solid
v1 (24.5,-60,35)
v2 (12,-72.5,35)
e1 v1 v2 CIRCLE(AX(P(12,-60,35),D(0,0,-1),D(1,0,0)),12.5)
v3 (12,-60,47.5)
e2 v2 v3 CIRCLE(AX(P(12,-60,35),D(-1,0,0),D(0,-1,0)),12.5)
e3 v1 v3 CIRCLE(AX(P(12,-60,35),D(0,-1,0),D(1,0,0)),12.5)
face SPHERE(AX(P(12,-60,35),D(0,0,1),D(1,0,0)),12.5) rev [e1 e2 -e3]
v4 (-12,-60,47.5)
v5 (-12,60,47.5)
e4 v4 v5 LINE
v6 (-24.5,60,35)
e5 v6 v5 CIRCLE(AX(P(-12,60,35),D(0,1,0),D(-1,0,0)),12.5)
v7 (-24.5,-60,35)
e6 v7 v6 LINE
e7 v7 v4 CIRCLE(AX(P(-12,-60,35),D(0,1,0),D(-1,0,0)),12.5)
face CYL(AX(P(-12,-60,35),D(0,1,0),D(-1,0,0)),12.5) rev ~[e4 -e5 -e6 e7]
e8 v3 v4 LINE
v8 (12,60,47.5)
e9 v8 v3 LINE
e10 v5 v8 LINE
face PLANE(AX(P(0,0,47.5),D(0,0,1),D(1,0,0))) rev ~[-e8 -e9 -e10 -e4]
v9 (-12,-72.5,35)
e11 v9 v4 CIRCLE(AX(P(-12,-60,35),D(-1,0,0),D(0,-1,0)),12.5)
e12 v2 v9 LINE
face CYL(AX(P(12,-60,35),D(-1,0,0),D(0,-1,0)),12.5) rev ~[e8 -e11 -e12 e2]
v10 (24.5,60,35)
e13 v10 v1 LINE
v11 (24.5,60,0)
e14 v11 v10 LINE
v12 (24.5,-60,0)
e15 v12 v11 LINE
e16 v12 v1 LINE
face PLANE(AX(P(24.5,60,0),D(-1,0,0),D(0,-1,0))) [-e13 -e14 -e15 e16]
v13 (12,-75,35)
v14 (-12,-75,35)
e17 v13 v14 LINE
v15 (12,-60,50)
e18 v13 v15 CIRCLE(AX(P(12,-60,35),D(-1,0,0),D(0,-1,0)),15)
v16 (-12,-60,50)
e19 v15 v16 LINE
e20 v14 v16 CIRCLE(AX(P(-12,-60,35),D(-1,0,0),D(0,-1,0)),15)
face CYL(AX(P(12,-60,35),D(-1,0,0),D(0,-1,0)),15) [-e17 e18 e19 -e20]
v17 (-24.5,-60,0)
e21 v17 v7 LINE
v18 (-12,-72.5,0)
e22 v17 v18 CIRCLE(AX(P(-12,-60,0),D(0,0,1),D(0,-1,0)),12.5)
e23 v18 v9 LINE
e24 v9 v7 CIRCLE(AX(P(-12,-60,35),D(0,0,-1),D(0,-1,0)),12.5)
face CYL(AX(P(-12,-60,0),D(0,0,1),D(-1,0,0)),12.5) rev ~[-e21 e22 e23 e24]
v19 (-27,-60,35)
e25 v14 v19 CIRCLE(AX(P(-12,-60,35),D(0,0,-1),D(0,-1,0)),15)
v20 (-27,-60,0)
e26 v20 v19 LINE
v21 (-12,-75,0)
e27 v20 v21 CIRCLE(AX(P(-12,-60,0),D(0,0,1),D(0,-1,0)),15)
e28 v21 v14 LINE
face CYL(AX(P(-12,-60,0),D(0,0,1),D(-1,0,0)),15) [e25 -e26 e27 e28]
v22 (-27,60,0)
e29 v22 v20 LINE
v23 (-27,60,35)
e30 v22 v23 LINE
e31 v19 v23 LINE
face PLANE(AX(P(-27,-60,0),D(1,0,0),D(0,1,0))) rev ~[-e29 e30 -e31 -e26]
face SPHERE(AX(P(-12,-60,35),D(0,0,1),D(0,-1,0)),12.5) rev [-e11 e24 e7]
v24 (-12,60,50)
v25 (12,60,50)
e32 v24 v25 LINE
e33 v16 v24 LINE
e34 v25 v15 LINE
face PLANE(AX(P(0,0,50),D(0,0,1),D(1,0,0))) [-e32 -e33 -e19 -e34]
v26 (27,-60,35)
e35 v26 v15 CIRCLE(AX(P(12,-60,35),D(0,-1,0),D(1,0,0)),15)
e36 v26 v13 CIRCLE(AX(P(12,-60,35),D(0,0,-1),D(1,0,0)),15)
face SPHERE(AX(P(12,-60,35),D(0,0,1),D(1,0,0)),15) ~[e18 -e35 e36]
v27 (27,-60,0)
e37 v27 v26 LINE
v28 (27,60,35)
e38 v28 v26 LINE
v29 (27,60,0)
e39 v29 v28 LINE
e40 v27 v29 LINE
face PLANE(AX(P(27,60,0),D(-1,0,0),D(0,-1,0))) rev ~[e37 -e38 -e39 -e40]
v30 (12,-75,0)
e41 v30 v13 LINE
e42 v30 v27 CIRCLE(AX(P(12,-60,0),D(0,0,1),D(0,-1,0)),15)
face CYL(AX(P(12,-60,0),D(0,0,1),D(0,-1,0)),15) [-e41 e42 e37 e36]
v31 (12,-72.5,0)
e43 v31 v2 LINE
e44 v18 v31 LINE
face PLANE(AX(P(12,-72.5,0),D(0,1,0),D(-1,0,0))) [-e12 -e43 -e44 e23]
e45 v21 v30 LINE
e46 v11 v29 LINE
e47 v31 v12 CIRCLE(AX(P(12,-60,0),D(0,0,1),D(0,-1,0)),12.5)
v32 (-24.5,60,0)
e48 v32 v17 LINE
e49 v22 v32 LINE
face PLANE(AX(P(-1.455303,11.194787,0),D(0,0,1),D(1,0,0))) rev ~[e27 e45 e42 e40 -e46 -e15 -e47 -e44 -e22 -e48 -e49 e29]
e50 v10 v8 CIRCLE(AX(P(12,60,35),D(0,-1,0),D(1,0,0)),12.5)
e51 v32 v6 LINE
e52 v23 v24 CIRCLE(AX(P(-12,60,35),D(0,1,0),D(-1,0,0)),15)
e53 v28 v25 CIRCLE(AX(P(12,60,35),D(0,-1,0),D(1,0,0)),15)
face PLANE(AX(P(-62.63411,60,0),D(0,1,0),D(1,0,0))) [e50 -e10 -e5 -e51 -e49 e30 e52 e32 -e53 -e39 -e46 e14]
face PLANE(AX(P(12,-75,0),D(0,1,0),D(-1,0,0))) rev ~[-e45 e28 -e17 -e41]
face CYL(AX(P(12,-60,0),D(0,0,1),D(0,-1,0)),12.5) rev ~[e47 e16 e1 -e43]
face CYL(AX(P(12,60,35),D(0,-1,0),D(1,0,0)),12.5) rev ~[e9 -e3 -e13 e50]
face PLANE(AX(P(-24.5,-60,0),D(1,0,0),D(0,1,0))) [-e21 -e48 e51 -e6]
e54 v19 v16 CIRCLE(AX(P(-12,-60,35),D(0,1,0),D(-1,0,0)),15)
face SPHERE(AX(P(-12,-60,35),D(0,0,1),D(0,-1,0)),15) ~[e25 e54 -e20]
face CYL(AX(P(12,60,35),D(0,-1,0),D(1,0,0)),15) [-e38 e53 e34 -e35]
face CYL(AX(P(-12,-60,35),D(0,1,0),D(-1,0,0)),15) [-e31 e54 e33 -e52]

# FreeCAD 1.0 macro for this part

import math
import FreeCAD as App
import Part
import Sketcher

V = App.Vector


def edges_at(feature, points):
    """Names of the edges that pass closest to the given points."""
    edges = feature.Shape.Edges
    near = lambda p: min(range(len(edges)), key=lambda i: edges[i].distToShape(Part.Vertex(*p))[0])
    return sorted({f"Edge{near(p) + 1}" for p in points})


def faces_at(feature, points):
    """Names of the faces that lie closest to the given points."""
    faces = feature.Shape.Faces
    near = lambda p: min(range(len(faces)), key=lambda i: faces[i].distToShape(Part.Vertex(*p))[0])
    return sorted({f"Face{near(p) + 1}" for p in points})

doc = App.newDocument("Part")
body = doc.addObject("PartDesign::Body", "Body")

sketch1 = body.newObject("Sketcher::SketchObject", "Sketch")
sketch1.AttachmentSupport = (doc.getObject("XY_Plane"), [""])
sketch1.MapMode = "FlatFace"
sketch1.addGeometry(Part.LineSegment(V(-27, 75, 0), V(-27, -75, 0)), False)
sketch1.addGeometry(Part.LineSegment(V(-27, -75, 0), V(27, -75, 0)), False)
sketch1.addGeometry(Part.LineSegment(V(27, -75, 0), V(27, 75, 0)), False)
sketch1.addGeometry(Part.LineSegment(V(27, 75, 0), V(-27, 75, 0)), False)
sketch1.addConstraint(Sketcher.Constraint("Coincident", 0, 2, 1, 1))
sketch1.addConstraint(Sketcher.Constraint("Coincident", 1, 2, 2, 1))
sketch1.addConstraint(Sketcher.Constraint("Coincident", 2, 2, 3, 1))
sketch1.addConstraint(Sketcher.Constraint("Coincident", 3, 2, 0, 1))
sketch1.addConstraint(Sketcher.Constraint("Vertical", 0))
sketch1.addConstraint(Sketcher.Constraint("Horizontal", 1))
sketch1.addConstraint(Sketcher.Constraint("Vertical", 2))
sketch1.addConstraint(Sketcher.Constraint("Horizontal", 3))
sketch1.addConstraint(Sketcher.Constraint("Symmetric", 0, 2, 2, 2, -1, 1))
sketch1.addConstraint(Sketcher.Constraint("DistanceX", 1, 1, 1, 2, 54.0))
sketch1.addConstraint(Sketcher.Constraint("DistanceY", 0, 2, 0, 1, 150.0))
pad1 = body.newObject("PartDesign::Pad", "Pad")
pad1.Profile = sketch1
pad1.Length = 50
doc.recompute()

fillet = body.newObject("PartDesign::Fillet", "Fillet")
fillet.Base = (pad1, edges_at(pad1, [
    (27, -75, 25),
    (-27, -75, 25),
    (27, 75, 25),
    (-27, 75, 25),
]))
fillet.Radius = 15
doc.recompute()

fillet2 = body.newObject("PartDesign::Fillet", "Fillet001")
fillet2.Base = (fillet, edges_at(fillet, [(-27, 0, 50)]))
fillet2.Radius = 15

sketch2 = body.newObject("Sketcher::SketchObject", "Sketch001")
sketch2.AttachmentSupport = (doc.getObject("XY_Plane"), [""])
sketch2.MapMode = "FlatFace"
sketch2.addGeometry(Part.ArcOfCircle(Part.Circle(V(12, 60, 0), V(0, 0, 1), 15), math.radians(0), math.radians(90)), False)
sketch2.addGeometry(Part.LineSegment(V(27, 60, 0), V(27, -60, 0)), False)
sketch2.addGeometry(Part.ArcOfCircle(Part.Circle(V(12, -60, 0), V(0, 0, 1), 15), math.radians(-90), math.radians(0)), False)
sketch2.addGeometry(Part.LineSegment(V(12, -75, 0), V(-12, -75, 0)), False)
sketch2.addGeometry(Part.ArcOfCircle(Part.Circle(V(-12, -60, 0), V(0, 0, 1), 15), math.radians(180), math.radians(270)), False)
sketch2.addGeometry(Part.LineSegment(V(-27, -60, 0), V(-27, 60, 0)), False)
sketch2.addGeometry(Part.ArcOfCircle(Part.Circle(V(-12, 60, 0), V(0, 0, 1), 15), math.radians(90), math.radians(180)), False)
sketch2.addGeometry(Part.LineSegment(V(-12, 75, 0), V(12, 75, 0)), False)
sketch2.addConstraint(Sketcher.Constraint("Tangent", 0, 1, 1, 1))
sketch2.addConstraint(Sketcher.Constraint("Tangent", 1, 2, 2, 2))
sketch2.addConstraint(Sketcher.Constraint("Tangent", 2, 1, 3, 1))
sketch2.addConstraint(Sketcher.Constraint("Tangent", 3, 2, 4, 2))
sketch2.addConstraint(Sketcher.Constraint("Tangent", 4, 1, 5, 1))
sketch2.addConstraint(Sketcher.Constraint("Tangent", 5, 2, 6, 2))
sketch2.addConstraint(Sketcher.Constraint("Tangent", 6, 1, 7, 1))
sketch2.addConstraint(Sketcher.Constraint("Tangent", 7, 2, 0, 2))
sketch2.addConstraint(Sketcher.Constraint("Vertical", 1))
sketch2.addConstraint(Sketcher.Constraint("Horizontal", 3))
sketch2.addConstraint(Sketcher.Constraint("Vertical", 5))
sketch2.addConstraint(Sketcher.Constraint("Horizontal", 7))
sketch2.addConstraint(Sketcher.Constraint("Equal", 0, 2))
sketch2.addConstraint(Sketcher.Constraint("Equal", 2, 4))
sketch2.addConstraint(Sketcher.Constraint("Equal", 4, 6))
sketch2.addConstraint(Sketcher.Constraint("Symmetric", 0, 3, 4, 3, -1, 1))
sketch2.addConstraint(Sketcher.Constraint("Radius", 0, 14.999999))
sketch2.addConstraint(Sketcher.Constraint("DistanceX", 3, 2, 3, 1, 24.0))
sketch2.addConstraint(Sketcher.Constraint("DistanceY", 1, 2, 1, 1, 120.0))
pad2 = body.newObject("PartDesign::Pad", "Pad001")
pad2.Profile = sketch2
pad2.Length = 5
pad2.Reversed = True

sketch3 = body.newObject("Sketcher::SketchObject", "Sketch002")
sketch3.AttachmentSupport = (doc.getObject("XY_Plane"), [""])
sketch3.MapMode = "FlatFace"
sketch3.addGeometry(Part.LineSegment(V(-62, 122, 0), V(-62, -99, 0)), False)
sketch3.addGeometry(Part.LineSegment(V(-62, -99, 0), V(59, -99, 0)), False)
sketch3.addGeometry(Part.LineSegment(V(59, -99, 0), V(59, 122, 0)), False)
sketch3.addGeometry(Part.LineSegment(V(59, 122, 0), V(-62, 122, 0)), False)
sketch3.addConstraint(Sketcher.Constraint("Coincident", 0, 2, 1, 1))
sketch3.addConstraint(Sketcher.Constraint("Coincident", 1, 2, 2, 1))
sketch3.addConstraint(Sketcher.Constraint("Coincident", 2, 2, 3, 1))
sketch3.addConstraint(Sketcher.Constraint("Coincident", 3, 2, 0, 1))
sketch3.addConstraint(Sketcher.Constraint("Vertical", 0))
sketch3.addConstraint(Sketcher.Constraint("Horizontal", 1))
sketch3.addConstraint(Sketcher.Constraint("Vertical", 2))
sketch3.addConstraint(Sketcher.Constraint("Horizontal", 3))
sketch3.addConstraint(Sketcher.Constraint("DistanceX", -1, 1, 1, 2, 59.0984))
sketch3.addConstraint(Sketcher.Constraint("DistanceX", 1, 1, 1, 2, 121.107407))
sketch3.addConstraint(Sketcher.Constraint("DistanceY", 0, 2, 0, 1, 220.926333))
sketch3.addConstraint(Sketcher.Constraint("DistanceY", 0, 2, -1, 1, 99.268379))
pocket1 = body.newObject("PartDesign::Pocket", "Pocket")
pocket1.Profile = sketch3
pocket1.Type = "ThroughAll"

sketch4 = body.newObject("Sketcher::SketchObject", "Sketch003")
sketch4.AttachmentSupport = (doc.getObject("XY_Plane"), [""])
sketch4.MapMode = "FlatFace"
sketch4.addGeometry(Part.LineSegment(V(-63, 60, 0), V(-63, 150, 0)), False)
sketch4.addGeometry(Part.LineSegment(V(-63, 150, 0), V(79, 150, 0)), False)
sketch4.addGeometry(Part.LineSegment(V(79, 150, 0), V(79, 60, 0)), False)
sketch4.addGeometry(Part.LineSegment(V(79, 60, 0), V(-63, 60, 0)), False)
sketch4.addConstraint(Sketcher.Constraint("Coincident", 0, 2, 1, 1))
sketch4.addConstraint(Sketcher.Constraint("Coincident", 1, 2, 2, 1))
sketch4.addConstraint(Sketcher.Constraint("Coincident", 2, 2, 3, 1))
sketch4.addConstraint(Sketcher.Constraint("Coincident", 3, 2, 0, 1))
sketch4.addConstraint(Sketcher.Constraint("Vertical", 0))
sketch4.addConstraint(Sketcher.Constraint("Horizontal", 1))
sketch4.addConstraint(Sketcher.Constraint("Vertical", 2))
sketch4.addConstraint(Sketcher.Constraint("Horizontal", 3))
sketch4.addConstraint(Sketcher.Constraint("DistanceY", -1, 1, 2, 2, 60.0))
sketch4.addConstraint(Sketcher.Constraint("DistanceX", 1, 1, 1, 2, 141.400545))
sketch4.addConstraint(Sketcher.Constraint("DistanceY", 0, 1, 0, 2, 89.871116))
sketch4.addConstraint(Sketcher.Constraint("DistanceX", 0, 2, -1, 1, 62.63411))
pocket2 = body.newObject("PartDesign::Pocket", "Pocket001")
pocket2.Profile = sketch4
pocket2.Type = "ThroughAll"
pocket2.Reversed = True
doc.recompute()

thickness = body.newObject("PartDesign::Thickness", "Thickness")
thickness.Base = (pocket2, faces_at(pocket2, [(0, -7.5, 0), (0, 60, 25)]))
thickness.Value = 2.5
thickness.Reversed = True
thickness.Join = "Arc"

doc.recompute()
